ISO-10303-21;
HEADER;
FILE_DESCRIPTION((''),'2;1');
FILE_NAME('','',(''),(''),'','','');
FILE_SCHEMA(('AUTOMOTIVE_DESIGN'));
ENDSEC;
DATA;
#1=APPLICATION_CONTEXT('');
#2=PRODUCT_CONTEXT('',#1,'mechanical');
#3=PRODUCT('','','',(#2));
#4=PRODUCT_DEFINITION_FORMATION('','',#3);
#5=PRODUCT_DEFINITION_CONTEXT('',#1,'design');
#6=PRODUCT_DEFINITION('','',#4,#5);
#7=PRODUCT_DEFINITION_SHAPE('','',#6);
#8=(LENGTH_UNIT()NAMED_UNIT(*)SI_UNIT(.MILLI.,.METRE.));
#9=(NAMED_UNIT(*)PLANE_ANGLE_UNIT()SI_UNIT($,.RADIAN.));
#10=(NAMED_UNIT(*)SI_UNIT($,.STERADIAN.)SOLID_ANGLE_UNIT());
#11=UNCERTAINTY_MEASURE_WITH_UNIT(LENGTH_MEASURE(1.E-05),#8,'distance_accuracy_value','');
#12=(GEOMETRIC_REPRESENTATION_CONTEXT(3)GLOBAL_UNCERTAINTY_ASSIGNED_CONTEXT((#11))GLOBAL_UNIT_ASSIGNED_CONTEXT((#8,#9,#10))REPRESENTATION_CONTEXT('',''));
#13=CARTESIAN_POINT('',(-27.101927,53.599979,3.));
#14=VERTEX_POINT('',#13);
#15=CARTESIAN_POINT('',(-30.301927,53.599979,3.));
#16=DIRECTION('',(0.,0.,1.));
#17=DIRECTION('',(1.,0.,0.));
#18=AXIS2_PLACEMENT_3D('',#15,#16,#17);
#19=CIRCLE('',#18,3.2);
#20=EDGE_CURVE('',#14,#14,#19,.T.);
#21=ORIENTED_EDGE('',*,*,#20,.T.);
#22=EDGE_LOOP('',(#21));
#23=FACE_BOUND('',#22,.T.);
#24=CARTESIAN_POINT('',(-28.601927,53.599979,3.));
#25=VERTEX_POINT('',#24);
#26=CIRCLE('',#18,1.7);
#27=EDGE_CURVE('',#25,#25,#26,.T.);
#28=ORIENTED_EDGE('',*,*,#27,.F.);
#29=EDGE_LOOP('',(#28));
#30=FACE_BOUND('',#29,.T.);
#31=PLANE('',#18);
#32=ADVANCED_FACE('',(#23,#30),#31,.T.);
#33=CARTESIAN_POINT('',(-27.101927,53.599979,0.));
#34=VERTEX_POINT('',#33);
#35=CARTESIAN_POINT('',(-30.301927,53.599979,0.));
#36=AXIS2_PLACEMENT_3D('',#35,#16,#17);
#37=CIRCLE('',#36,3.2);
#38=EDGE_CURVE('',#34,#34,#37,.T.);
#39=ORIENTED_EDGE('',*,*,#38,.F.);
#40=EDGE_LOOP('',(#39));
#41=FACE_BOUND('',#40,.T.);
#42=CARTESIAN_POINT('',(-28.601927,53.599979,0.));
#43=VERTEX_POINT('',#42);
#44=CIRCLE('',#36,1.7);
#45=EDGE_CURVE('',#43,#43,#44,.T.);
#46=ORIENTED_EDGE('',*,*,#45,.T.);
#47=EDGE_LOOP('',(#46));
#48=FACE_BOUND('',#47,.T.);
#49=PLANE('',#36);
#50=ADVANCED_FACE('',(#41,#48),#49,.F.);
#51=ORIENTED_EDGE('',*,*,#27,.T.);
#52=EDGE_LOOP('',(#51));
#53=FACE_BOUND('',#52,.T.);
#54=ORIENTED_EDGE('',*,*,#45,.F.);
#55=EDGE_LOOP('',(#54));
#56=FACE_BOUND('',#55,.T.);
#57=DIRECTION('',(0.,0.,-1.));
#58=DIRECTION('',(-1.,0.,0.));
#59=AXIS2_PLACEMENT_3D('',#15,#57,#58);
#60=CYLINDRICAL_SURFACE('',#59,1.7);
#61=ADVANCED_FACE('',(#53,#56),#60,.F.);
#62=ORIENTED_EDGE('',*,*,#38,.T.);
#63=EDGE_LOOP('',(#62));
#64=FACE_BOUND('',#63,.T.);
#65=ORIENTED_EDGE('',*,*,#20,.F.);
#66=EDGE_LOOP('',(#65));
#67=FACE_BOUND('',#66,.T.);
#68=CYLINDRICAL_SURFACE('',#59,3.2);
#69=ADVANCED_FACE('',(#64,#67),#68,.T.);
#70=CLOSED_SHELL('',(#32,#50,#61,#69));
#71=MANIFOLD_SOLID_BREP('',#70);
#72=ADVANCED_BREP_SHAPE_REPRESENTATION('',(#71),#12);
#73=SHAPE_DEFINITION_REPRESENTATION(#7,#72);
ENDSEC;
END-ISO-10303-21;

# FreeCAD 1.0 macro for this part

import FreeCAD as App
import Part
import Sketcher

V = App.Vector

doc = App.newDocument("Part")
params = doc.addObject("Spreadsheet::Sheet", "Params")
for row, (alias, value) in enumerate([
    ("sketch1_diameter", "6.4 mm"),
    ("sketch1_diameter2", "3.4 mm"),
    ("pad1_length", "3 mm"),
], start=1):
    params.set(f"A{row}", alias)
    params.set(f"B{row}", "=" + value)
    params.setAlias(f"B{row}", alias)

body = doc.addObject("PartDesign::Body", "Body")

sketch1 = body.newObject("Sketcher::SketchObject", "Sketch")
sketch1.AttachmentSupport = (doc.getObject("XY_Plane"), [""])
sketch1.MapMode = "FlatFace"
sketch1.addGeometry([
    Part.Circle(V(-30.3, 53.6, 0), V(0, 0, 1), 3.2),
    Part.Circle(V(-30.3, 53.6, 0), V(0, 0, 1), 1.7),
], False)
sketch1.addConstraint([
    Sketcher.Constraint("Coincident", 1, 3, 0, 3),
    Sketcher.Constraint("Diameter", 0, 6.4),
    Sketcher.Constraint("Diameter", 1, 3.4),
    Sketcher.Constraint("DistanceY", -1, 1, 0, 3, 53.599979),
    Sketcher.Constraint("DistanceX", 0, 3, -1, 1, 30.301927),
])
sketch1.setExpression("Constraints[1]", "Params.sketch1_diameter")
sketch1.setExpression("Constraints[2]", "Params.sketch1_diameter2")
pad1 = body.newObject("PartDesign::Pad", "Pad")
pad1.Profile = sketch1
pad1.setExpression("Length", "Params.pad1_length")

doc.recompute()
